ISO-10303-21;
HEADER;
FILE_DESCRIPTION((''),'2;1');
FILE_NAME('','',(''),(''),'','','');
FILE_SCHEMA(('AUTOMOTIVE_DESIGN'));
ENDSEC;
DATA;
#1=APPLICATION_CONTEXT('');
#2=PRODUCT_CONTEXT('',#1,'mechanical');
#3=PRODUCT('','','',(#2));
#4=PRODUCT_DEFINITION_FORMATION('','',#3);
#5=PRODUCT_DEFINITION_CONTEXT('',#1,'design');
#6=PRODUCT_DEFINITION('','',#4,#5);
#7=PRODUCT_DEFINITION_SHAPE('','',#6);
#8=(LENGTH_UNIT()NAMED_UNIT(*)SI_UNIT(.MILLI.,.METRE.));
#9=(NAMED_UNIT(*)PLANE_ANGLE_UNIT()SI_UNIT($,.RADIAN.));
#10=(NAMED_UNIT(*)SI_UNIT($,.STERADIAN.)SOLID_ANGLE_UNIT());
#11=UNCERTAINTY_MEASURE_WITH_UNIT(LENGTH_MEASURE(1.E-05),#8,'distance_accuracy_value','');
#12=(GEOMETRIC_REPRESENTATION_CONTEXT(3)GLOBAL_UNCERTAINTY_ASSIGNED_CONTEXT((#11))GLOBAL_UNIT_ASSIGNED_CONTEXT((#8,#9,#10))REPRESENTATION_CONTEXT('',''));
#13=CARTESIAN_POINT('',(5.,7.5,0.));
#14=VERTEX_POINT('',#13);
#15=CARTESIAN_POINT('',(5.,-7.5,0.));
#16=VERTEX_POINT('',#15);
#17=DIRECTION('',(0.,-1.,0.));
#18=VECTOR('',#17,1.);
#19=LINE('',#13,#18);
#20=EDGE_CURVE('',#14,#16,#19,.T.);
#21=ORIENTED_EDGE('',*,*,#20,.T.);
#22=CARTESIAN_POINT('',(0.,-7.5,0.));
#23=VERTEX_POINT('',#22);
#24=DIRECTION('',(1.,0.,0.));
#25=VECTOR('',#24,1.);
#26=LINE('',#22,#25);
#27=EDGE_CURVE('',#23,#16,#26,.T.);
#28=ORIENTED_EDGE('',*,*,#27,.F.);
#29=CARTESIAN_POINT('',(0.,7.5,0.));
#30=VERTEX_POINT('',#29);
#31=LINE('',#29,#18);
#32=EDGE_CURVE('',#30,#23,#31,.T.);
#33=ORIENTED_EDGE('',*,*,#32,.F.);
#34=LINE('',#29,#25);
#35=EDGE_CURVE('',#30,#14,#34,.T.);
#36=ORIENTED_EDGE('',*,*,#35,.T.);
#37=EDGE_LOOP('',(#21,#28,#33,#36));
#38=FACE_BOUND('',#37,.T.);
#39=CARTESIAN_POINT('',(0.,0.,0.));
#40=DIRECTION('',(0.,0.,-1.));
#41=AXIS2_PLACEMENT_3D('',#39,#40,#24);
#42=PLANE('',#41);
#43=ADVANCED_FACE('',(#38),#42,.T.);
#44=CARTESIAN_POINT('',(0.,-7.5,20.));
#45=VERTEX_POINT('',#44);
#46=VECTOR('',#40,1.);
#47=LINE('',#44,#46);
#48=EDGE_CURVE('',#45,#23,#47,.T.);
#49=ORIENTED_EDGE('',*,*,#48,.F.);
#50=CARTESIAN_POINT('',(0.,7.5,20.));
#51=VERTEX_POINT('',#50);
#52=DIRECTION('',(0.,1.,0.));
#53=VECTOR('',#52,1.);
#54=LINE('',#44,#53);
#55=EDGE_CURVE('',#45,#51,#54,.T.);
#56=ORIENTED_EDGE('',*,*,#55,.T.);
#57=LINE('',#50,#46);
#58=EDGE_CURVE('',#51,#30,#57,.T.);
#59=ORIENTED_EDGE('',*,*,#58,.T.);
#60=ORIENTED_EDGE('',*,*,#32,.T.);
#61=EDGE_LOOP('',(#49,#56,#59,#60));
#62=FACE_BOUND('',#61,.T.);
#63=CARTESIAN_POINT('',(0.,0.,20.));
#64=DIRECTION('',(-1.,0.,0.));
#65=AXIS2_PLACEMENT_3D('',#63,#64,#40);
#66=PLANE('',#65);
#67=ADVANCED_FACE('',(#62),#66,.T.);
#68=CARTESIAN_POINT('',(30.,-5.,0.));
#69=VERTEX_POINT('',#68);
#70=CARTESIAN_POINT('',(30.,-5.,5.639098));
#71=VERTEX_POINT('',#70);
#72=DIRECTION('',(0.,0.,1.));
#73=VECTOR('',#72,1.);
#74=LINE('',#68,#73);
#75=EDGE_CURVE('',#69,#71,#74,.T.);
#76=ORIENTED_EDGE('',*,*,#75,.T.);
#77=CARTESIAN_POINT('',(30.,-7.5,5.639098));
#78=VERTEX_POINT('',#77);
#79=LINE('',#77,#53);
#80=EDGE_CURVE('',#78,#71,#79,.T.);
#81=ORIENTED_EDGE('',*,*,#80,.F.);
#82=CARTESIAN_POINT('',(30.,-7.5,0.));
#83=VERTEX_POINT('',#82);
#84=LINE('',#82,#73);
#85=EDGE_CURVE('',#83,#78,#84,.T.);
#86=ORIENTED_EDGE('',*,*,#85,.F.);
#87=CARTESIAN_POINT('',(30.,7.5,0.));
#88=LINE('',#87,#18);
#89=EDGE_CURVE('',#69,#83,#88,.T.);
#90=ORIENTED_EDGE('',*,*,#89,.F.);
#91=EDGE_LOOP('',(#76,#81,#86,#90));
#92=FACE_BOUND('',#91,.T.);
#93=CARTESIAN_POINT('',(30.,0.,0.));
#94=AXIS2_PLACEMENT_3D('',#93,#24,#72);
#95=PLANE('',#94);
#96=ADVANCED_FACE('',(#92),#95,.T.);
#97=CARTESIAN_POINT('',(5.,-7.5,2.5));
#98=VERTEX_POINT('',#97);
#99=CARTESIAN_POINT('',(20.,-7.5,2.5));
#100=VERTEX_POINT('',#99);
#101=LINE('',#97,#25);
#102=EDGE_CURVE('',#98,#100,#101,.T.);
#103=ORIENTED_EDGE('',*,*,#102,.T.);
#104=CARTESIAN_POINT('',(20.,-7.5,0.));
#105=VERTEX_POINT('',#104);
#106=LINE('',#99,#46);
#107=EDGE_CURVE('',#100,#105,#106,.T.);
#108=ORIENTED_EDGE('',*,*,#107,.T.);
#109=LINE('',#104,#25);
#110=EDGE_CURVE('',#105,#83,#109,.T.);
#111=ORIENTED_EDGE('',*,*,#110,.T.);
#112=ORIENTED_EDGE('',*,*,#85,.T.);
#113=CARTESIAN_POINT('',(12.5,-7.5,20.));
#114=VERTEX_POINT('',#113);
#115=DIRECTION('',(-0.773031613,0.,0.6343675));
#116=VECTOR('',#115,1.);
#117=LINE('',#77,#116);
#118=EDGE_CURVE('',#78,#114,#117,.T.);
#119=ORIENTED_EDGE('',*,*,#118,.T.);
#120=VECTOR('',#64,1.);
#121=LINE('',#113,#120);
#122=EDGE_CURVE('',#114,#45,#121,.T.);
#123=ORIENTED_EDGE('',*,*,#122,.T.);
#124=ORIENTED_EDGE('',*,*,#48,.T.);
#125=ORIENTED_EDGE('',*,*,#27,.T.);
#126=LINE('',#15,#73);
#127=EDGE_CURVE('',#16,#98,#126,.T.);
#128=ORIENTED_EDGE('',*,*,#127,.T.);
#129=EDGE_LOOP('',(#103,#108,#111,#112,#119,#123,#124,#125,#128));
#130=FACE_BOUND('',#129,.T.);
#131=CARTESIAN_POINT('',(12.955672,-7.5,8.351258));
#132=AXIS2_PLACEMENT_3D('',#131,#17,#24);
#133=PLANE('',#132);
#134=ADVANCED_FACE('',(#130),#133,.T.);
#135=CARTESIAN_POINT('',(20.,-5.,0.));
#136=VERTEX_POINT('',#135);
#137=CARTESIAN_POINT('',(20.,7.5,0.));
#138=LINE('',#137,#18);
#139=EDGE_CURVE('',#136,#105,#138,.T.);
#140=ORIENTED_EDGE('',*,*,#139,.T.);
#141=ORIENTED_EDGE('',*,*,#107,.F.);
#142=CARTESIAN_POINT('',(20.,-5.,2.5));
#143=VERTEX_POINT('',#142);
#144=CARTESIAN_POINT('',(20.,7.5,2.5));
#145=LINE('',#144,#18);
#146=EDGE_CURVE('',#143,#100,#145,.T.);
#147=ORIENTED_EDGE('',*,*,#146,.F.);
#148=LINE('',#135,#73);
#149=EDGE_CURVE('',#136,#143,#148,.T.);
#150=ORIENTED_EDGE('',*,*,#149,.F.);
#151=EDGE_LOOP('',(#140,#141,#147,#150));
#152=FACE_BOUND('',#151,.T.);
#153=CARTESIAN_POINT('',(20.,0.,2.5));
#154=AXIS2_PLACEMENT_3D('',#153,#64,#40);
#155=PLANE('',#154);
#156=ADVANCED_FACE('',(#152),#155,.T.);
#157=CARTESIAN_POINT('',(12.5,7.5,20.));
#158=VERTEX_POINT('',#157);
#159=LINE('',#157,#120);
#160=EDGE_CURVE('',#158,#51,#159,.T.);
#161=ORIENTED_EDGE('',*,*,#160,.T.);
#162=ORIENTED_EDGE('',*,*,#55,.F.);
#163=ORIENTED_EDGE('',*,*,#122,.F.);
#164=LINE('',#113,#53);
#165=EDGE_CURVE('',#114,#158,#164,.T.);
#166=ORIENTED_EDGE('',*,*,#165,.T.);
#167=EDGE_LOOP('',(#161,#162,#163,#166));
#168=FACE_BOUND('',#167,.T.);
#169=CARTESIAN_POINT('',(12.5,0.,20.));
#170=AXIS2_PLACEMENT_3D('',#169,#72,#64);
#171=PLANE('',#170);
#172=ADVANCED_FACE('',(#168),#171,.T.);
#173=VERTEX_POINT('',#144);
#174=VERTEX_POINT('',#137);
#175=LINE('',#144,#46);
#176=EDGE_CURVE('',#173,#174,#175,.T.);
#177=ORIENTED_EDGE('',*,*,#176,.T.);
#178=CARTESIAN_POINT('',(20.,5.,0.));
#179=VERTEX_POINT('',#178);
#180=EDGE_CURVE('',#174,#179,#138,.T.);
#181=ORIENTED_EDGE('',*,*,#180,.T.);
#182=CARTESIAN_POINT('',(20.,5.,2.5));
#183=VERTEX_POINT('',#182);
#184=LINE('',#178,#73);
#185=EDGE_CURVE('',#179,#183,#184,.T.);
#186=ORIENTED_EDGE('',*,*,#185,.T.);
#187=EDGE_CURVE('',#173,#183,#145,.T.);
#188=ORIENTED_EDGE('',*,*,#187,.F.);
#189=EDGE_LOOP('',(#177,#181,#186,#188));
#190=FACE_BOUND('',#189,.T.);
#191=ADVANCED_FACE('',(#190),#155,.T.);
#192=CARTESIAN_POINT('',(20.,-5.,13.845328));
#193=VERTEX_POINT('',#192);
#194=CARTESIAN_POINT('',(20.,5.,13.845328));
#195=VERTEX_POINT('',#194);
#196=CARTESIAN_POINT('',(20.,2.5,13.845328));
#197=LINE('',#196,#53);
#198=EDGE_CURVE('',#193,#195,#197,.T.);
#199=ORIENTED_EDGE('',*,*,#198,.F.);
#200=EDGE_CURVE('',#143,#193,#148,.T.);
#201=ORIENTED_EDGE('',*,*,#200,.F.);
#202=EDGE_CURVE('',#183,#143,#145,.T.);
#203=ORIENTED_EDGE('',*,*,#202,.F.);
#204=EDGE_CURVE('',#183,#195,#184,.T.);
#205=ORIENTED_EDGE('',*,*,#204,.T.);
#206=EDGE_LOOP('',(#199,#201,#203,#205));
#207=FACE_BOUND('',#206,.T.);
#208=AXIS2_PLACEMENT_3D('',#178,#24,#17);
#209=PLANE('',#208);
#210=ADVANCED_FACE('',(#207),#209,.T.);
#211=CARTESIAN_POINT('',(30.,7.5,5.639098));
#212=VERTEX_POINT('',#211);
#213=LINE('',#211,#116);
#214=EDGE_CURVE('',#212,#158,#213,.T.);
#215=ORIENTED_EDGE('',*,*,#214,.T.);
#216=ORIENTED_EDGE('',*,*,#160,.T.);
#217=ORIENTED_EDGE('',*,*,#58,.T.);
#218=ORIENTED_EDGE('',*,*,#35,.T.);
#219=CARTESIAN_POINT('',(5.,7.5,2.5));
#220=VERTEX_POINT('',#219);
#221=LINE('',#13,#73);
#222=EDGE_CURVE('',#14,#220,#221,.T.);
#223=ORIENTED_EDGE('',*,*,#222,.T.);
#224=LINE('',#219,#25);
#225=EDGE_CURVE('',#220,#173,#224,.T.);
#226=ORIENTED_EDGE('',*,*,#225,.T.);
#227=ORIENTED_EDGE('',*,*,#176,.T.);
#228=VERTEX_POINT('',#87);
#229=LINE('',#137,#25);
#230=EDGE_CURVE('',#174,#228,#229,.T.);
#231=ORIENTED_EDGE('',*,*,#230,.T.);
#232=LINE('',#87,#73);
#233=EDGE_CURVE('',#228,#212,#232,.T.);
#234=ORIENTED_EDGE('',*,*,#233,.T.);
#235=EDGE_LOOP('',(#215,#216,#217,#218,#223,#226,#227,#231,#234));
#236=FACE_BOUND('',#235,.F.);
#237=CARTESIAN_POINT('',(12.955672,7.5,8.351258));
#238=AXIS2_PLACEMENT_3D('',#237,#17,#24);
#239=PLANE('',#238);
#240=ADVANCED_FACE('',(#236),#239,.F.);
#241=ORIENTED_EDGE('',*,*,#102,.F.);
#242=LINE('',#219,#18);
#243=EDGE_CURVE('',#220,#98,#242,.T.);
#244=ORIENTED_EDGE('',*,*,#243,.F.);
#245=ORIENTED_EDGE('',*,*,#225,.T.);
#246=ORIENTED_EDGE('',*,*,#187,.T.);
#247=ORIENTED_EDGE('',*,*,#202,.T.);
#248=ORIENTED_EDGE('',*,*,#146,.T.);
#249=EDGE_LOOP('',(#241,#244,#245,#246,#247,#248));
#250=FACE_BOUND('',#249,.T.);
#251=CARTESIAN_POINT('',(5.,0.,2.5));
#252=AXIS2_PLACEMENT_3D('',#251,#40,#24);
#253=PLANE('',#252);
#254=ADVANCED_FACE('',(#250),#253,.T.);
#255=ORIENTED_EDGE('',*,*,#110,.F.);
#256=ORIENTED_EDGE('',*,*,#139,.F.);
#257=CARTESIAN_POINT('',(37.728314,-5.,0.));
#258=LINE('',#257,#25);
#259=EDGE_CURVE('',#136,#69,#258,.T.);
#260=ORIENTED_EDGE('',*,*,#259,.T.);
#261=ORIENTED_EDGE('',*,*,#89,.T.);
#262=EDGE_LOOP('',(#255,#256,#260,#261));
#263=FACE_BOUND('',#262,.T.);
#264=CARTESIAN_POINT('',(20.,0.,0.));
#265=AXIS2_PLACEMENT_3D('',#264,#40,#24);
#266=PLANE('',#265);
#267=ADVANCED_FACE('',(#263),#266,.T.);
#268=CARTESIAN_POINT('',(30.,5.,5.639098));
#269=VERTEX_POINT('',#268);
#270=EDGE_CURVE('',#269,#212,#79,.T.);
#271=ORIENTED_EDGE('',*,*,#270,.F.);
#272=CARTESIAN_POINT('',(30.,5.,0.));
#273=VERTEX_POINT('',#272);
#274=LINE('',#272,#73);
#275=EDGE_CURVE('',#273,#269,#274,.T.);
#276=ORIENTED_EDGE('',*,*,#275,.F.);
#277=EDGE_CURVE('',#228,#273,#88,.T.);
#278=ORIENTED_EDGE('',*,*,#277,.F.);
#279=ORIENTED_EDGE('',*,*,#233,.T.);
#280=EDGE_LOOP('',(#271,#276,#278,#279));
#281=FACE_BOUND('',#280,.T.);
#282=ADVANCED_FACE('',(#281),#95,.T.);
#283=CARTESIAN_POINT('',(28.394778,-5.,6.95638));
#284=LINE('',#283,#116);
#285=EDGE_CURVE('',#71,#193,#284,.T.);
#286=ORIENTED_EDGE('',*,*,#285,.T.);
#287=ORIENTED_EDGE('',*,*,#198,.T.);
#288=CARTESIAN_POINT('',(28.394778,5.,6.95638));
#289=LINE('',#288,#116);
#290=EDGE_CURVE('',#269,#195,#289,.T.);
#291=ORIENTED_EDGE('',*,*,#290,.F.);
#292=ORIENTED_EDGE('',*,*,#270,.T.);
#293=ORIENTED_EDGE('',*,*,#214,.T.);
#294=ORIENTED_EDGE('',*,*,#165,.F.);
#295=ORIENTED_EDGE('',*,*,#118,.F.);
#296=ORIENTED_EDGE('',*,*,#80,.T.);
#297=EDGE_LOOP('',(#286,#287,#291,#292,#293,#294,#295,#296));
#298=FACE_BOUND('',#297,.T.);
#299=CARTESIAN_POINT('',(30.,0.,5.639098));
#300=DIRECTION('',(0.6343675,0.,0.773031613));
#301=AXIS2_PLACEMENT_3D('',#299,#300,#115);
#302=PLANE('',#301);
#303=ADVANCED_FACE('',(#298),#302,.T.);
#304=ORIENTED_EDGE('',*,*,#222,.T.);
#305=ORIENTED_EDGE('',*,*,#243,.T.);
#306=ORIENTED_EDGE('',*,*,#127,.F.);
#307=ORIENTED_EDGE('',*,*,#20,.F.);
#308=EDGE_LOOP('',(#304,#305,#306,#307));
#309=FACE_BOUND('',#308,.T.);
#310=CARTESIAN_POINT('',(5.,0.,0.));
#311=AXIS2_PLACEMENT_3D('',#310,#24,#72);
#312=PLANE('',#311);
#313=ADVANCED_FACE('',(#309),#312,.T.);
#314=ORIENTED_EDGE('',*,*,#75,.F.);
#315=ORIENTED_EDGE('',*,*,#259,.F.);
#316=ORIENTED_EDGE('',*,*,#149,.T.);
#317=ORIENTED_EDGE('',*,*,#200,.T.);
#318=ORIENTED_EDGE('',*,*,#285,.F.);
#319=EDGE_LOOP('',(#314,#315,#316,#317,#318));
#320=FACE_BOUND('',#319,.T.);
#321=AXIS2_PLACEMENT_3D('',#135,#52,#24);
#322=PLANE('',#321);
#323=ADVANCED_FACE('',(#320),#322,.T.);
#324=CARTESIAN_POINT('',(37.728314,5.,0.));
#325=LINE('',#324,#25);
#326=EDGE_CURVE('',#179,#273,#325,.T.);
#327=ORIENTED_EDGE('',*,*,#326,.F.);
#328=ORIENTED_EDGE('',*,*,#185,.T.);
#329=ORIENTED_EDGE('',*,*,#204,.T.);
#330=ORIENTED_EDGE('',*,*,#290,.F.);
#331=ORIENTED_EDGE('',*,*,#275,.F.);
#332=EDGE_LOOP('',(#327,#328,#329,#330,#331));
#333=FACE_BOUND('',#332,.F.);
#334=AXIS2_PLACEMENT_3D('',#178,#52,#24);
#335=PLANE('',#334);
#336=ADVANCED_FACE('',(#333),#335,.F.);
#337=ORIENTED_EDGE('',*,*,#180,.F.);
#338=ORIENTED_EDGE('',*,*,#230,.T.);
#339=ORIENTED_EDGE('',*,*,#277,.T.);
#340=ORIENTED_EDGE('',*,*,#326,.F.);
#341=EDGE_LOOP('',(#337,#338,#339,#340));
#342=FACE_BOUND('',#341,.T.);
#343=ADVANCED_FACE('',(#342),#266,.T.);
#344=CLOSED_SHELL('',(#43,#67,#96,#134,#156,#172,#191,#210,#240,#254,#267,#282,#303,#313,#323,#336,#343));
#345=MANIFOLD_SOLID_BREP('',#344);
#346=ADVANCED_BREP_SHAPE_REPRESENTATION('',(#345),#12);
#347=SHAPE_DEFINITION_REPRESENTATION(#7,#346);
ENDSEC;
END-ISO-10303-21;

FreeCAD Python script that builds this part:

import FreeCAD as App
import Part
import Sketcher

V = App.Vector


def add_polygon(sketch, points):
    """Adds a closed chain of lines whose ends are joined by coincident constraints."""
    first, n = sketch.GeometryCount, len(points)
    for a, b in zip(points, points[1:] + points[:1]):
        sketch.addGeometry(Part.LineSegment(App.Vector(*a, 0), App.Vector(*b, 0)), False)
    for i in range(n):
        sketch.addConstraint(Sketcher.Constraint("Coincident", first + i, 2, first + (i + 1) % n, 1))

doc = App.newDocument("Part")
body = doc.addObject("PartDesign::Body", "Body")

sketch1 = body.newObject("Sketcher::SketchObject", "Sketch")
sketch1.AttachmentSupport = (doc.getObject("XZ_Plane"), [""])
sketch1.MapMode = "FlatFace"
add_polygon(sketch1, [(0, 20), (0, 0), (5, 0), (5, 2.5), (20, 2.5), (20, 0), (30, 0), (30, 5.6), (12.5, 20)])
sketch1.addConstraint([
    Sketcher.Constraint("Vertical", 0),
    Sketcher.Constraint("Horizontal", 1),
    Sketcher.Constraint("Vertical", 2),
    Sketcher.Constraint("Horizontal", 3),
    Sketcher.Constraint("Vertical", 4),
    Sketcher.Constraint("Horizontal", 5),
    Sketcher.Constraint("Vertical", 6),
    Sketcher.Constraint("Horizontal", 8),
    Sketcher.Constraint("Coincident", 0, 2, -1, 1),
    Sketcher.Constraint("PointOnObject", 4, 2, -1),
    Sketcher.Constraint("DistanceX", 1, 1, 1, 2, 5.0),
    Sketcher.Constraint("DistanceX", 3, 1, 3, 2, 15.0),
    Sketcher.Constraint("DistanceX", 5, 1, 5, 2, 10.0),
    Sketcher.Constraint("DistanceY", 0, 2, 0, 1, 20.0),
    Sketcher.Constraint("DistanceX", 8, 2, 8, 1, 12.5),
    Sketcher.Constraint("DistanceY", 2, 1, 2, 2, 2.5),
    Sketcher.Constraint("DistanceY", 6, 2, 7, 2, 14.360902),
])
pad1 = body.newObject("PartDesign::Pad", "Pad")
pad1.Profile = sketch1
pad1.Length = 15
pad1.Midplane = True

sketch2 = body.newObject("Sketcher::SketchObject", "Sketch001")
sketch2.AttachmentSupport = (doc.getObject("XY_Plane"), [""])
sketch2.MapMode = "FlatFace"
add_polygon(sketch2, [(20, -5), (20, 5), (55, 5), (55, -5)])
sketch2.addConstraint([
    Sketcher.Constraint("Vertical", 0),
    Sketcher.Constraint("Horizontal", 1),
    Sketcher.Constraint("Vertical", 2),
    Sketcher.Constraint("Horizontal", 3),
    Sketcher.Constraint("DistanceY", 0, 1, 0, 2, 10.0),
    Sketcher.Constraint("DistanceX", -1, 1, 0, 2, 20.0),
    Sketcher.Constraint("DistanceY", -1, 1, 0, 2, 5.0),
    Sketcher.Constraint("DistanceX", 1, 1, 1, 2, 35.456628),
])
pocket1 = body.newObject("PartDesign::Pocket", "Pocket")
pocket1.Profile = sketch2
pocket1.Type = "ThroughAll"
pocket1.Reversed = True

doc.recompute()
